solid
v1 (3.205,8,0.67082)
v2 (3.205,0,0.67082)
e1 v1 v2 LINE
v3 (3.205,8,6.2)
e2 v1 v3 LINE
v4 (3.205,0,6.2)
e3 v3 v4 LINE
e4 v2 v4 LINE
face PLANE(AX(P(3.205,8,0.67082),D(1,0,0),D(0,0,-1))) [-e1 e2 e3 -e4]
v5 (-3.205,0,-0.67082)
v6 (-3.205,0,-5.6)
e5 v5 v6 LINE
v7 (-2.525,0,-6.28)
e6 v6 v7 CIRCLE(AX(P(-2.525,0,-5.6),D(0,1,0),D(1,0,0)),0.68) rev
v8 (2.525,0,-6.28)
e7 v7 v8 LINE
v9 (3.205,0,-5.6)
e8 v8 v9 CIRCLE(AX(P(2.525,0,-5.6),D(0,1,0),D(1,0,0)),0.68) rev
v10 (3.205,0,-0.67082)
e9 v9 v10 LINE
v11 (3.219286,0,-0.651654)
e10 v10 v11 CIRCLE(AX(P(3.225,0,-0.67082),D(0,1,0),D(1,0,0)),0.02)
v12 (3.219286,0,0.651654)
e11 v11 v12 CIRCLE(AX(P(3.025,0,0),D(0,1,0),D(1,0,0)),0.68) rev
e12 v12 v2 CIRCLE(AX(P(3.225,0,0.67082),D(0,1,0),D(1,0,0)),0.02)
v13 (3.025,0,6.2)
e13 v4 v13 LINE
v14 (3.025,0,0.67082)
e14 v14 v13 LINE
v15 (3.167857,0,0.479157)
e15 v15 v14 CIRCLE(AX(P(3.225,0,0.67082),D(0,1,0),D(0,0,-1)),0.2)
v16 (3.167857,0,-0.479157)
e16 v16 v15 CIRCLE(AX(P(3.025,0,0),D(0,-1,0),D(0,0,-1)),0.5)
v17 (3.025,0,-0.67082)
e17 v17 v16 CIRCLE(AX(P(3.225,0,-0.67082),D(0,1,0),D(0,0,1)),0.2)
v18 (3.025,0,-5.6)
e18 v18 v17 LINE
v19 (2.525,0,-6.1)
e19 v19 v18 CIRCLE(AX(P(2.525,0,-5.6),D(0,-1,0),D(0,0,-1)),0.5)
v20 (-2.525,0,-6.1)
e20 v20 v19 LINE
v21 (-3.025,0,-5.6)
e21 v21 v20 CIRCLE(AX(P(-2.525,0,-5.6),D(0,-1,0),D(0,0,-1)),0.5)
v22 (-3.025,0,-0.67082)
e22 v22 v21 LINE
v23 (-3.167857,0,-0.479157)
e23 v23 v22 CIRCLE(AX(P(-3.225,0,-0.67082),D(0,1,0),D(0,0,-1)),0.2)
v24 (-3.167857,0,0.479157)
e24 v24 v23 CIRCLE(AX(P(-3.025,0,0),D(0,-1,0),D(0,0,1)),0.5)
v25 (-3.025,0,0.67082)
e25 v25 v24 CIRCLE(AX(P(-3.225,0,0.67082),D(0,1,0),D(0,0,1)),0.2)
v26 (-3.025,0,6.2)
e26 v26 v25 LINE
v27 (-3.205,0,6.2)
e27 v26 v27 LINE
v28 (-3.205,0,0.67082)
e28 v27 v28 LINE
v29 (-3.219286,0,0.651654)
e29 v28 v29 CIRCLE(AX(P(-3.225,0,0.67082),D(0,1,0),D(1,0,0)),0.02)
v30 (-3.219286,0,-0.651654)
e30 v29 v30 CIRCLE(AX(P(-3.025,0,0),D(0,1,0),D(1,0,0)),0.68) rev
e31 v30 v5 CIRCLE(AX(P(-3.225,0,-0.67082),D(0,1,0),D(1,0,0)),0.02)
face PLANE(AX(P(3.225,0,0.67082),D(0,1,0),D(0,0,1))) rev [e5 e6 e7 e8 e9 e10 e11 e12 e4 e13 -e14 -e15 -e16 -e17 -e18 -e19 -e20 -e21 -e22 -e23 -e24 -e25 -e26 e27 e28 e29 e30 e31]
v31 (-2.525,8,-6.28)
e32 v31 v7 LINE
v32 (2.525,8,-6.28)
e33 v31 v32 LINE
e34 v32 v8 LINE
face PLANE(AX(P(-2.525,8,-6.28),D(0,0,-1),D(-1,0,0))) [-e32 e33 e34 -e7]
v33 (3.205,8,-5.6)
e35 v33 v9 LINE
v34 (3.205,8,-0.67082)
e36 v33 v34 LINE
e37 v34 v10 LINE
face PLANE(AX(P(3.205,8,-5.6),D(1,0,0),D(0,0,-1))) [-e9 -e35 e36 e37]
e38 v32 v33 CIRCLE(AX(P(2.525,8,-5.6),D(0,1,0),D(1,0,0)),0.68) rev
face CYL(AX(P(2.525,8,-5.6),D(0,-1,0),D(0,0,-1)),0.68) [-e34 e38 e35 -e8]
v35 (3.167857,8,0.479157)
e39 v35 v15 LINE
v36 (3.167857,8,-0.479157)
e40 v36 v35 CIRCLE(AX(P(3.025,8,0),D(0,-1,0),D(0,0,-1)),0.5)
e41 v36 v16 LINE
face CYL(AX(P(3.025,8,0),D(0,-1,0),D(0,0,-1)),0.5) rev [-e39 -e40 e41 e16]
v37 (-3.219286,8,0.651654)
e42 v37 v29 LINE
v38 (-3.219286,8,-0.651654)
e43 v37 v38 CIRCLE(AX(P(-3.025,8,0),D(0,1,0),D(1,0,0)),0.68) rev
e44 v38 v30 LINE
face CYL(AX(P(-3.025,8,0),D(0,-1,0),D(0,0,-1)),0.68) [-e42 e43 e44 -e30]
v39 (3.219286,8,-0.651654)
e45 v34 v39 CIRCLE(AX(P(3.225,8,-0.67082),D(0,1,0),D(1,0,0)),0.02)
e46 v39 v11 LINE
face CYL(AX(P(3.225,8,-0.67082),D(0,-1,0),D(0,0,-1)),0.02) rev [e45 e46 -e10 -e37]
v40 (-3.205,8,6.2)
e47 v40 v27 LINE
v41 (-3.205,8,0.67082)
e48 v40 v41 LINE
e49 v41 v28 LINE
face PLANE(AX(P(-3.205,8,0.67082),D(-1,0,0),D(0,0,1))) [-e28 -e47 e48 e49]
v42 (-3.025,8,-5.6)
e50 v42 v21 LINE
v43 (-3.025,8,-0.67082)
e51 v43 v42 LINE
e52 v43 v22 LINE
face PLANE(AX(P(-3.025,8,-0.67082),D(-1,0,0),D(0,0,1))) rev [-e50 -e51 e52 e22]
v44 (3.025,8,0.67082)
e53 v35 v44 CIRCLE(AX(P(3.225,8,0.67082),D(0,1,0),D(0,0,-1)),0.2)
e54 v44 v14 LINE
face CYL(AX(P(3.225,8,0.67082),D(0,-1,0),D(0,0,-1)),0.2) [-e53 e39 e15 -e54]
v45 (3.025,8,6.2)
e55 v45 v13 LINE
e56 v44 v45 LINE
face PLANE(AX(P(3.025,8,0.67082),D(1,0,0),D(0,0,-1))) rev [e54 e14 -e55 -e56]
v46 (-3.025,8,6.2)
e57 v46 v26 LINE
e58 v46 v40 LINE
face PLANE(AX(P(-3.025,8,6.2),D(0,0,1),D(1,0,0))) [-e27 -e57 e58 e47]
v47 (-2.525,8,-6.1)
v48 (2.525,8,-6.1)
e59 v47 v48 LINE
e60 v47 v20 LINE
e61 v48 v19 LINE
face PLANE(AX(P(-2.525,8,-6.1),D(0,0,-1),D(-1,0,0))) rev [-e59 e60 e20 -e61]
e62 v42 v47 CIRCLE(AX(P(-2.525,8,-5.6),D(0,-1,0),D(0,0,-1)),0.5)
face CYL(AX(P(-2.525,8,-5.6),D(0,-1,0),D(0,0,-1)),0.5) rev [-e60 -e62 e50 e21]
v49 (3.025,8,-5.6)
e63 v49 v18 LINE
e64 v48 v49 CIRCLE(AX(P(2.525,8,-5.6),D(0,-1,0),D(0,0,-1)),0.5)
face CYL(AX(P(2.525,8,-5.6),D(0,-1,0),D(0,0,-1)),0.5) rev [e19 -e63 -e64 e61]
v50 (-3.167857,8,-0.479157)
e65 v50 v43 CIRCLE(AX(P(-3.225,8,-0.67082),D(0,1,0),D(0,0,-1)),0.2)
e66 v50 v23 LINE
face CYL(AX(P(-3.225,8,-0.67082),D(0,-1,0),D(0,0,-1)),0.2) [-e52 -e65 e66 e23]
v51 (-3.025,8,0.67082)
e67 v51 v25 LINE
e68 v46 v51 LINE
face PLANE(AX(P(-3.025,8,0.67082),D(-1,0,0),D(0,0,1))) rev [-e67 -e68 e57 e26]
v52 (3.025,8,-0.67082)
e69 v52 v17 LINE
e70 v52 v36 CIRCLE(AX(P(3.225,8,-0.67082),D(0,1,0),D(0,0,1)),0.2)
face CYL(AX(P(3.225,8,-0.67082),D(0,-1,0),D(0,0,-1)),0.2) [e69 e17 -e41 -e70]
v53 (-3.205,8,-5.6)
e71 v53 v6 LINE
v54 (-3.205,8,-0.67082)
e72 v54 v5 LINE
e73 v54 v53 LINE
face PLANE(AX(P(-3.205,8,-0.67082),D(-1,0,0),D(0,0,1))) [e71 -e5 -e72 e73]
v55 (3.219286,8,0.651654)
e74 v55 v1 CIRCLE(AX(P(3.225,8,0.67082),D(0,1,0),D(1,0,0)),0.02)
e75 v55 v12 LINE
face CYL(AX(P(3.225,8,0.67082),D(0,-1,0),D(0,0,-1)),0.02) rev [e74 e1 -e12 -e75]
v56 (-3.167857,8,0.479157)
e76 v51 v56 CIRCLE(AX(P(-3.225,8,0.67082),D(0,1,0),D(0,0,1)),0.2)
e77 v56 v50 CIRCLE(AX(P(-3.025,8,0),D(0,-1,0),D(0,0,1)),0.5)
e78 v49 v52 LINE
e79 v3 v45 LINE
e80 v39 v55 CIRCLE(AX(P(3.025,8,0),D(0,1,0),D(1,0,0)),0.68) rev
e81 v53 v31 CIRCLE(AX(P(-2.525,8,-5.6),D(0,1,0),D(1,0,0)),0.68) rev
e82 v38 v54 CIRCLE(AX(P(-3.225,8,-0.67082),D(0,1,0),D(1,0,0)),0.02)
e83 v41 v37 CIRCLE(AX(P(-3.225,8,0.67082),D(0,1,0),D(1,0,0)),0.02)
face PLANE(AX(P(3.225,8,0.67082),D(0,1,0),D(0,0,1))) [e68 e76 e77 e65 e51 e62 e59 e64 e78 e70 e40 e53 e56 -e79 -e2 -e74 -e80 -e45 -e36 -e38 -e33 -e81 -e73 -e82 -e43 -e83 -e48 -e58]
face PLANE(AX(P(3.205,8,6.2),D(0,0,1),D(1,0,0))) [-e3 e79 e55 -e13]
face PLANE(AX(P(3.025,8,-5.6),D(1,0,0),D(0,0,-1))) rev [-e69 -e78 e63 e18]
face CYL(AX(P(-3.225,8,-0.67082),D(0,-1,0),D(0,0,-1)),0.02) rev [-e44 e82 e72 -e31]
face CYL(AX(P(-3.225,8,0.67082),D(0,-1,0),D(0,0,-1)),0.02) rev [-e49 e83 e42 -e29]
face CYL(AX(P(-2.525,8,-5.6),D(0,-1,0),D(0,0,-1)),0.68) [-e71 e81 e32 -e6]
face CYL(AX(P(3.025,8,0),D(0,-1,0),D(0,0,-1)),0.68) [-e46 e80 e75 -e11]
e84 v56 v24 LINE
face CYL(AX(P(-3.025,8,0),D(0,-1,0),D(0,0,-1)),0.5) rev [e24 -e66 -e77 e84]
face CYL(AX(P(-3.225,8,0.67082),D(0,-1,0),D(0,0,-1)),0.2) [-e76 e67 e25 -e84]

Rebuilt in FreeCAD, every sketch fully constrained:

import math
import FreeCAD as App
import Part
import Sketcher
from FreeCAD import Vector

doc = App.newDocument("Part")
params = doc.addObject("Spreadsheet::Sheet", "Params")
for row, (alias, value) in enumerate([
    ("sketch1_radius", "0.2 mm"),
    ("sketch1_radius2", "0.5 mm"),
    ("sketch1_radius3", "0.02 mm"),
    ("sketch1_width", "5.05 mm"),
    ("pad1_length", "8 mm"),
], start=1):
    params.set(f"A{row}", alias)
    params.set(f"B{row}", "=" + value)
    params.setAlias(f"B{row}", alias)

body = doc.addObject("PartDesign::Body", "Body")

# Sketch on XZ plane
sketch1 = doc.addObject("Sketcher::SketchObject", "Sketch")
body.addObject(sketch1)
sketch1.AttachmentSupport = (doc.XZ_Plane, [""])
sketch1.MapMode = "FlatFace"
sketch1.addGeometry([
    Part.LineSegment(Vector(-3.025, 6.2, 0), Vector(-3.025, 0.671, 0)),  # 0
    Part.ArcOfCircle(Part.Circle(Vector(-3.225, 0.671, 0), Vector(0, 0, 1), 0.2), math.radians(-73), math.radians(0)),  # 1
    Part.ArcOfCircle(Part.Circle(Vector(-3.025, 0, 0), Vector(0, 0, 1), 0.5), math.radians(107), math.radians(253)),  # 2
    Part.ArcOfCircle(Part.Circle(Vector(-3.225, -0.671, 0), Vector(0, 0, 1), 0.2), math.radians(0), math.radians(73)),  # 3
    Part.LineSegment(Vector(-3.025, -0.671, 0), Vector(-3.025, -5.6, 0)),  # 4
    Part.ArcOfCircle(Part.Circle(Vector(-2.525, -5.6, 0), Vector(0, 0, 1), 0.5), math.radians(180), math.radians(270)),  # 5
    Part.LineSegment(Vector(-2.525, -6.1, 0), Vector(2.525, -6.1, 0)),  # 6
    Part.ArcOfCircle(Part.Circle(Vector(2.525, -5.6, 0), Vector(0, 0, 1), 0.5), math.radians(-90), math.radians(0)),  # 7
    Part.LineSegment(Vector(3.025, -5.6, 0), Vector(3.025, -0.671, 0)),  # 8
    Part.ArcOfCircle(Part.Circle(Vector(3.225, -0.671, 0), Vector(0, 0, 1), 0.2), math.radians(107), math.radians(180)),  # 9
    Part.ArcOfCircle(Part.Circle(Vector(3.025, 0, 0), Vector(0, 0, 1), 0.5), math.radians(-73), math.radians(73)),  # 10
    Part.ArcOfCircle(Part.Circle(Vector(3.225, 0.671, 0), Vector(0, 0, 1), 0.2), math.radians(180), math.radians(253)),  # 11
    Part.LineSegment(Vector(3.025, 0.671, 0), Vector(3.025, 6.2, 0)),  # 12
    Part.LineSegment(Vector(3.025, 6.2, 0), Vector(3.205, 6.2, 0)),  # 13
    Part.LineSegment(Vector(3.205, 6.2, 0), Vector(3.205, 0.671, 0)),  # 14
    Part.ArcOfCircle(Part.Circle(Vector(3.225, 0.671, 0), Vector(0, 0, 1), 0.02), math.radians(180), math.radians(253)),  # 15
    Part.ArcOfCircle(Part.Circle(Vector(3.025, 0, 0), Vector(0, 0, 1), 0.68), math.radians(-73), math.radians(73)),  # 16
    Part.ArcOfCircle(Part.Circle(Vector(3.225, -0.671, 0), Vector(0, 0, 1), 0.02), math.radians(107), math.radians(180)),  # 17
    Part.LineSegment(Vector(3.205, -0.671, 0), Vector(3.205, -5.6, 0)),  # 18
    Part.ArcOfCircle(Part.Circle(Vector(2.525, -5.6, 0), Vector(0, 0, 1), 0.68), math.radians(-90), math.radians(0)),  # 19
    Part.LineSegment(Vector(2.525, -6.28, 0), Vector(-2.525, -6.28, 0)),  # 20
    Part.ArcOfCircle(Part.Circle(Vector(-2.525, -5.6, 0), Vector(0, 0, 1), 0.68), math.radians(-180), math.radians(-90)),  # 21
    Part.LineSegment(Vector(-3.205, -5.6, 0), Vector(-3.205, -0.671, 0)),  # 22
    Part.ArcOfCircle(Part.Circle(Vector(-3.225, -0.671, 0), Vector(0, 0, 1), 0.02), math.radians(0), math.radians(73)),  # 23
    Part.ArcOfCircle(Part.Circle(Vector(-3.025, 0, 0), Vector(0, 0, 1), 0.68), math.radians(107), math.radians(253)),  # 24
    Part.ArcOfCircle(Part.Circle(Vector(-3.225, 0.671, 0), Vector(0, 0, 1), 0.02), math.radians(-73), math.radians(0)),  # 25
    Part.LineSegment(Vector(-3.205, 0.671, 0), Vector(-3.205, 6.2, 0)),  # 26
    Part.LineSegment(Vector(-3.205, 6.2, 0), Vector(-3.025, 6.2, 0)),  # 27
], False)
sketch1.addConstraint([
    Sketcher.Constraint("Tangent", 0, 2, 1, 2),
    Sketcher.Constraint("Tangent", 1, 1, 2, 1),
    Sketcher.Constraint("Tangent", 2, 2, 3, 2),
    Sketcher.Constraint("Tangent", 3, 1, 4, 1),
    Sketcher.Constraint("Tangent", 4, 2, 5, 1),
    Sketcher.Constraint("Tangent", 5, 2, 6, 1),
    Sketcher.Constraint("Tangent", 6, 2, 7, 1),
    Sketcher.Constraint("Tangent", 7, 2, 8, 1),
    Sketcher.Constraint("Tangent", 8, 2, 9, 2),
    Sketcher.Constraint("Tangent", 9, 1, 10, 1),
    Sketcher.Constraint("Tangent", 10, 2, 11, 2),
    Sketcher.Constraint("Tangent", 11, 1, 12, 1),
    Sketcher.Constraint("Coincident", 12, 2, 13, 1),
    Sketcher.Constraint("Coincident", 13, 2, 14, 1),
    Sketcher.Constraint("Tangent", 14, 2, 15, 1),
    Sketcher.Constraint("Tangent", 15, 2, 16, 2),
    Sketcher.Constraint("Tangent", 16, 1, 17, 1),
    Sketcher.Constraint("Tangent", 17, 2, 18, 1),
    Sketcher.Constraint("Tangent", 18, 2, 19, 2),
    Sketcher.Constraint("Tangent", 19, 1, 20, 1),
    Sketcher.Constraint("Tangent", 20, 2, 21, 2),
    Sketcher.Constraint("Tangent", 21, 1, 22, 1),
    Sketcher.Constraint("Tangent", 22, 2, 23, 1),
    Sketcher.Constraint("Tangent", 23, 2, 24, 2),
    Sketcher.Constraint("Tangent", 24, 1, 25, 1),
    Sketcher.Constraint("Tangent", 25, 2, 26, 1),
    Sketcher.Constraint("Coincident", 26, 2, 27, 1),
    Sketcher.Constraint("Coincident", 27, 2, 0, 1),
    Sketcher.Constraint("Vertical", 0),
    Sketcher.Constraint("Vertical", 4),
    Sketcher.Constraint("Horizontal", 6),
    Sketcher.Constraint("Vertical", 8),
    Sketcher.Constraint("Vertical", 12),
    Sketcher.Constraint("Horizontal", 13),
    Sketcher.Constraint("Vertical", 14),
    Sketcher.Constraint("Vertical", 18),
    Sketcher.Constraint("Horizontal", 20),
    Sketcher.Constraint("Vertical", 22),
    Sketcher.Constraint("Vertical", 26),
    Sketcher.Constraint("Horizontal", 27),
    Sketcher.Constraint("Coincident", 15, 3, 11, 3),
    Sketcher.Constraint("Coincident", 16, 3, 10, 3),
    Sketcher.Constraint("Coincident", 17, 3, 9, 3),
    Sketcher.Constraint("Coincident", 19, 3, 7, 3),
    Sketcher.Constraint("Coincident", 21, 3, 5, 3),
    Sketcher.Constraint("Coincident", 23, 3, 3, 3),
    Sketcher.Constraint("Coincident", 24, 3, 2, 3),
    Sketcher.Constraint("Coincident", 25, 3, 1, 3),
    Sketcher.Constraint("Equal", 1, 3),
    Sketcher.Constraint("Equal", 2, 5),
    Sketcher.Constraint("Equal", 5, 7),
    Sketcher.Constraint("Equal", 3, 9),
    Sketcher.Constraint("Equal", 7, 10),
    Sketcher.Constraint("Equal", 9, 11),
    Sketcher.Constraint("Symmetric", 1, 3, 9, 3, -1, 1),
    Sketcher.Constraint("Symmetric", 3, 3, 11, 3, -1, 1),
    Sketcher.Constraint("Symmetric", 3, 3, 9, 3, -2),
    Sketcher.Constraint("Horizontal", 13, 2, 26, 2),
    Sketcher.Constraint("Vertical", 24, 3, 0, 2),
    Sketcher.Constraint("Radius", 1, 0.2),
    Sketcher.Constraint("Radius", 2, 0.5),
    Sketcher.Constraint("Radius", 15, 0.02),
    Sketcher.Constraint("DistanceX", 6, 1, 6, 2, 5.05),
    Sketcher.Constraint("DistanceY", 5, 3, -1, 1, 5.6),
    Sketcher.Constraint("DistanceY", -1, 1, 12, 2, 6.2),
])
sketch1.setExpression("Constraints[59]", "Params.sketch1_radius")
sketch1.setExpression("Constraints[60]", "Params.sketch1_radius2")
sketch1.setExpression("Constraints[61]", "Params.sketch1_radius3")
sketch1.setExpression("Constraints[62]", "Params.sketch1_width")
pad1 = doc.addObject("PartDesign::Pad", "Pad")
body.addObject(pad1)
pad1.Profile = sketch1
pad1.setExpression("Length", "Params.pad1_length")
pad1.Reversed = True

doc.recompute()
